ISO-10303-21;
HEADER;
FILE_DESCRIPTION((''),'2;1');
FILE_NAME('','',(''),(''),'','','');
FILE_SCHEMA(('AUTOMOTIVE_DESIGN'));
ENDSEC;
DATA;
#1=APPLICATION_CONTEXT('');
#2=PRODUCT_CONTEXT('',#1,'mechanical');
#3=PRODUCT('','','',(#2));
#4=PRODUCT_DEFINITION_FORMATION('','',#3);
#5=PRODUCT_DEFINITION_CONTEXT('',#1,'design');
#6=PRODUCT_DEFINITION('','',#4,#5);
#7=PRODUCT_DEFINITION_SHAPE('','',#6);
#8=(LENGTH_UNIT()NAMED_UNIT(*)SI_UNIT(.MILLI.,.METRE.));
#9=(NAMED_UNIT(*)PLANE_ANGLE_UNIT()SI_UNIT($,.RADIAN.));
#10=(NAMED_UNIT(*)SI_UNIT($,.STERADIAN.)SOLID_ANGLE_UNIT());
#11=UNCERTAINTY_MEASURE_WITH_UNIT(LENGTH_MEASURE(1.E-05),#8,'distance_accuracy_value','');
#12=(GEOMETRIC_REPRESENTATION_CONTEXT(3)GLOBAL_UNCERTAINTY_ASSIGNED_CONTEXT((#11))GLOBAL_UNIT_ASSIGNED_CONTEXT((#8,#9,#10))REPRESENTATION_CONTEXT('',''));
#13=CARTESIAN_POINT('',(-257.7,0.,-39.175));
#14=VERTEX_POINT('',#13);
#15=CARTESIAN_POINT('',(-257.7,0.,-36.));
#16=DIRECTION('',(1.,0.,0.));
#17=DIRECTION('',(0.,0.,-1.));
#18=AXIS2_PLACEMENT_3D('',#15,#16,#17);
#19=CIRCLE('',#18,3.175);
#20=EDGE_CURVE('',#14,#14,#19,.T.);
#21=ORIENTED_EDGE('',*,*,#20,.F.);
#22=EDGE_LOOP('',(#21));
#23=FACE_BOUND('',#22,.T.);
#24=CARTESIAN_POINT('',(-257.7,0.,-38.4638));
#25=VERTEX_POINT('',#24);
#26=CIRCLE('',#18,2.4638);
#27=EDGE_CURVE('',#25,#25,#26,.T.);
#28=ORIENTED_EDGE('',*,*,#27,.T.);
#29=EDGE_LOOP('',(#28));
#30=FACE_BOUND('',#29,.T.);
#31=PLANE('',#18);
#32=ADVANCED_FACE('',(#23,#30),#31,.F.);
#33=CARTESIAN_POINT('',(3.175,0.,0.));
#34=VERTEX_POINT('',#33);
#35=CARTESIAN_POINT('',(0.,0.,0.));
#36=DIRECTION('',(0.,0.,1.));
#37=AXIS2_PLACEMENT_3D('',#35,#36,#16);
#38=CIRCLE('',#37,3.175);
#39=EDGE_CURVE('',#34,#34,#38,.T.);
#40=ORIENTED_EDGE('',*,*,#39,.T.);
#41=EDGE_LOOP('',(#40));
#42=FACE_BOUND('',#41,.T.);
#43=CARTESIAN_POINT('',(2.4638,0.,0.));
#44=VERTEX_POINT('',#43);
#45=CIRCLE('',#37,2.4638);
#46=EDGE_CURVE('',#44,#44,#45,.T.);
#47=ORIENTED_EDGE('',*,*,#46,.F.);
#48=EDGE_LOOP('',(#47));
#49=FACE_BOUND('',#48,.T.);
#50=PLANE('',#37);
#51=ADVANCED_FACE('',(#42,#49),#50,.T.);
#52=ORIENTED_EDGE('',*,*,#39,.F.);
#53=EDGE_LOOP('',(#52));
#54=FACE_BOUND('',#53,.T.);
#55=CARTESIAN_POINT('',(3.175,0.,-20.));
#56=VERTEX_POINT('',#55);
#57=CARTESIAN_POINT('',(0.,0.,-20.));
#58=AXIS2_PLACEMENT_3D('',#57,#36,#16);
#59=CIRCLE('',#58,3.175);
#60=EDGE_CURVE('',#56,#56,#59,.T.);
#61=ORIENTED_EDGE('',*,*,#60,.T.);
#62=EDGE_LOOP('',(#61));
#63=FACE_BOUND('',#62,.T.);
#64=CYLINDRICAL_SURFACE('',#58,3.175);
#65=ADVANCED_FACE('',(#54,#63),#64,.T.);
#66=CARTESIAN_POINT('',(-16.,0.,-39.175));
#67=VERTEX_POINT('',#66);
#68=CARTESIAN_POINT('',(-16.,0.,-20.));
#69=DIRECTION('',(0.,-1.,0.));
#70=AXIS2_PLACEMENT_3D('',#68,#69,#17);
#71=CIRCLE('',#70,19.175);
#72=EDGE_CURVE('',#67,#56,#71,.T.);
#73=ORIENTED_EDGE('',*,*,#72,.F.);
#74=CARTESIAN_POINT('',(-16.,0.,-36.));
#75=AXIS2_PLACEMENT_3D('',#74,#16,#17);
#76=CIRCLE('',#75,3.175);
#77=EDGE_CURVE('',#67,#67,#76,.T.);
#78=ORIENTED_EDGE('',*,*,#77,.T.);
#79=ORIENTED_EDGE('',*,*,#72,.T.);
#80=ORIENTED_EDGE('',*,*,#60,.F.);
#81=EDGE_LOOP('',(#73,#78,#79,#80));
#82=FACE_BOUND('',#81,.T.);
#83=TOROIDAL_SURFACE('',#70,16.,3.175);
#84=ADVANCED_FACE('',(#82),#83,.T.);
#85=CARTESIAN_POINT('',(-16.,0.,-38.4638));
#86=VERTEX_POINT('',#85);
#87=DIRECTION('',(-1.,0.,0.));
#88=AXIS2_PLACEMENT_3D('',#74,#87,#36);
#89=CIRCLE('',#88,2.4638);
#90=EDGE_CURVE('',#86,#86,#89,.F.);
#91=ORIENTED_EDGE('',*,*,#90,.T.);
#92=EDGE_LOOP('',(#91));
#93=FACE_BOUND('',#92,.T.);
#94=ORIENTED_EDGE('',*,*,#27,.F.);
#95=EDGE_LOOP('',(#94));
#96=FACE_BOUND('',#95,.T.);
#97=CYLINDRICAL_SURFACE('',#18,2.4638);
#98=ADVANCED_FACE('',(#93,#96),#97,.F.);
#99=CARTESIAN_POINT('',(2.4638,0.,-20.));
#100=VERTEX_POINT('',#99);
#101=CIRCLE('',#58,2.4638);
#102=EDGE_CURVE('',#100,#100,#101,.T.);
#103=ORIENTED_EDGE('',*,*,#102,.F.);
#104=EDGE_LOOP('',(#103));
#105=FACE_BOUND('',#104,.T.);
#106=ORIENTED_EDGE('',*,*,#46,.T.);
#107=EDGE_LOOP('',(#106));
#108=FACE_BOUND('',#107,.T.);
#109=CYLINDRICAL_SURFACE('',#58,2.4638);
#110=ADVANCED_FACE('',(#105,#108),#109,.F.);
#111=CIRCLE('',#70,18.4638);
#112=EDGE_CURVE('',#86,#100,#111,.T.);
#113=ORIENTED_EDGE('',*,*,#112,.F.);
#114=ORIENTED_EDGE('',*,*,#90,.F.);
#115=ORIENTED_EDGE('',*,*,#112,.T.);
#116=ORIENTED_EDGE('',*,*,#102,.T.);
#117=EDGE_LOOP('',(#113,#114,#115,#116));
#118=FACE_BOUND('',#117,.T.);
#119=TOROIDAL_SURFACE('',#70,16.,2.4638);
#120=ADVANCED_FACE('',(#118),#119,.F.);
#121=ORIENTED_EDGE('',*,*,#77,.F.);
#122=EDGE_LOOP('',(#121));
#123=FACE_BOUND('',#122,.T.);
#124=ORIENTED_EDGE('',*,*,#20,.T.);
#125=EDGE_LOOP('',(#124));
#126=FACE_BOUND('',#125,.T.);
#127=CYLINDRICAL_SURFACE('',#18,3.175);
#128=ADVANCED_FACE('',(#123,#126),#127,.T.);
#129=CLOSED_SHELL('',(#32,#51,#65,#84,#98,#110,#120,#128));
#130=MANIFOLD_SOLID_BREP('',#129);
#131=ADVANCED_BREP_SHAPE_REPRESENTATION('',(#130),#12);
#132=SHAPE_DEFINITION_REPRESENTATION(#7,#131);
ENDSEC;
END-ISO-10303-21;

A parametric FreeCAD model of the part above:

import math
import FreeCAD as App
import Part
import Sketcher

V = App.Vector
Q = App.Units.Quantity

doc = App.newDocument("Part")
body = doc.addObject("PartDesign::Body", "Body")

# Sketch on XY plane
sketch1 = body.newObject("Sketcher::SketchObject", "Sketch")
sketch1.AttachmentSupport = (doc.getObject("XY_Plane"), [""])
sketch1.MapMode = "FlatFace"
sketch1.addGeometry(Part.Circle(V(0, 0, 0), V(0, 0, 1), 3.175), False)
sketch1.addGeometry(Part.Circle(V(0, 0, 0), V(0, 0, 1), 2.4638), False)
sketch1.addConstraint(Sketcher.Constraint("Coincident", 0, 3, -1, 1))
sketch1.addConstraint(Sketcher.Constraint("Coincident", 1, 3, -1, 1))
sketch1.addConstraint(Sketcher.Constraint("Diameter", 0, Q("6.35 mm")))
sketch1.addConstraint(Sketcher.Constraint("Diameter", 1, Q("4.9276 mm")))

# Sketch on XZ plane
sketch2 = body.newObject("Sketcher::SketchObject", "Sketch001")
sketch2.AttachmentSupport = (doc.getObject("XZ_Plane"), [""])
sketch2.MapMode = "FlatFace"
sketch2.addGeometry(Part.LineSegment(V(-257.7, -36, 0), V(-16, -36, 0)), False)
sketch2.addGeometry(Part.ArcOfCircle(Part.Circle(V(-16, -20, 0), V(0, 0, 1), 16), math.radians(-90), math.radians(0)), False)
sketch2.addGeometry(Part.LineSegment(V(0, -20, 0), V(0, 0, 0)), False)
sketch2.addConstraint(Sketcher.Constraint("Tangent", 0, 2, 1, 1))
sketch2.addConstraint(Sketcher.Constraint("Tangent", 1, 2, 2, 1))
sketch2.addConstraint(Sketcher.Constraint("Horizontal", 0))
sketch2.addConstraint(Sketcher.Constraint("Vertical", 2))
sketch2.addConstraint(Sketcher.Constraint("Coincident", 2, 2, -1, 1))
sketch2.addConstraint(Sketcher.Constraint("Radius", 1, Q("16 mm")))
sketch2.addConstraint(Sketcher.Constraint("DistanceY", 2, 1, 2, 2, Q("20 mm")))
sketch2.addConstraint(Sketcher.Constraint("DistanceX", 0, 1, 0, 2, Q("241.7 mm")))
doc.recompute()

additivepipe = body.newObject("PartDesign::AdditivePipe", "AdditivePipe")
additivepipe.Profile = sketch1
additivepipe.Spine = (sketch2, ["Edge1", "Edge2", "Edge3"])

doc.recompute()
